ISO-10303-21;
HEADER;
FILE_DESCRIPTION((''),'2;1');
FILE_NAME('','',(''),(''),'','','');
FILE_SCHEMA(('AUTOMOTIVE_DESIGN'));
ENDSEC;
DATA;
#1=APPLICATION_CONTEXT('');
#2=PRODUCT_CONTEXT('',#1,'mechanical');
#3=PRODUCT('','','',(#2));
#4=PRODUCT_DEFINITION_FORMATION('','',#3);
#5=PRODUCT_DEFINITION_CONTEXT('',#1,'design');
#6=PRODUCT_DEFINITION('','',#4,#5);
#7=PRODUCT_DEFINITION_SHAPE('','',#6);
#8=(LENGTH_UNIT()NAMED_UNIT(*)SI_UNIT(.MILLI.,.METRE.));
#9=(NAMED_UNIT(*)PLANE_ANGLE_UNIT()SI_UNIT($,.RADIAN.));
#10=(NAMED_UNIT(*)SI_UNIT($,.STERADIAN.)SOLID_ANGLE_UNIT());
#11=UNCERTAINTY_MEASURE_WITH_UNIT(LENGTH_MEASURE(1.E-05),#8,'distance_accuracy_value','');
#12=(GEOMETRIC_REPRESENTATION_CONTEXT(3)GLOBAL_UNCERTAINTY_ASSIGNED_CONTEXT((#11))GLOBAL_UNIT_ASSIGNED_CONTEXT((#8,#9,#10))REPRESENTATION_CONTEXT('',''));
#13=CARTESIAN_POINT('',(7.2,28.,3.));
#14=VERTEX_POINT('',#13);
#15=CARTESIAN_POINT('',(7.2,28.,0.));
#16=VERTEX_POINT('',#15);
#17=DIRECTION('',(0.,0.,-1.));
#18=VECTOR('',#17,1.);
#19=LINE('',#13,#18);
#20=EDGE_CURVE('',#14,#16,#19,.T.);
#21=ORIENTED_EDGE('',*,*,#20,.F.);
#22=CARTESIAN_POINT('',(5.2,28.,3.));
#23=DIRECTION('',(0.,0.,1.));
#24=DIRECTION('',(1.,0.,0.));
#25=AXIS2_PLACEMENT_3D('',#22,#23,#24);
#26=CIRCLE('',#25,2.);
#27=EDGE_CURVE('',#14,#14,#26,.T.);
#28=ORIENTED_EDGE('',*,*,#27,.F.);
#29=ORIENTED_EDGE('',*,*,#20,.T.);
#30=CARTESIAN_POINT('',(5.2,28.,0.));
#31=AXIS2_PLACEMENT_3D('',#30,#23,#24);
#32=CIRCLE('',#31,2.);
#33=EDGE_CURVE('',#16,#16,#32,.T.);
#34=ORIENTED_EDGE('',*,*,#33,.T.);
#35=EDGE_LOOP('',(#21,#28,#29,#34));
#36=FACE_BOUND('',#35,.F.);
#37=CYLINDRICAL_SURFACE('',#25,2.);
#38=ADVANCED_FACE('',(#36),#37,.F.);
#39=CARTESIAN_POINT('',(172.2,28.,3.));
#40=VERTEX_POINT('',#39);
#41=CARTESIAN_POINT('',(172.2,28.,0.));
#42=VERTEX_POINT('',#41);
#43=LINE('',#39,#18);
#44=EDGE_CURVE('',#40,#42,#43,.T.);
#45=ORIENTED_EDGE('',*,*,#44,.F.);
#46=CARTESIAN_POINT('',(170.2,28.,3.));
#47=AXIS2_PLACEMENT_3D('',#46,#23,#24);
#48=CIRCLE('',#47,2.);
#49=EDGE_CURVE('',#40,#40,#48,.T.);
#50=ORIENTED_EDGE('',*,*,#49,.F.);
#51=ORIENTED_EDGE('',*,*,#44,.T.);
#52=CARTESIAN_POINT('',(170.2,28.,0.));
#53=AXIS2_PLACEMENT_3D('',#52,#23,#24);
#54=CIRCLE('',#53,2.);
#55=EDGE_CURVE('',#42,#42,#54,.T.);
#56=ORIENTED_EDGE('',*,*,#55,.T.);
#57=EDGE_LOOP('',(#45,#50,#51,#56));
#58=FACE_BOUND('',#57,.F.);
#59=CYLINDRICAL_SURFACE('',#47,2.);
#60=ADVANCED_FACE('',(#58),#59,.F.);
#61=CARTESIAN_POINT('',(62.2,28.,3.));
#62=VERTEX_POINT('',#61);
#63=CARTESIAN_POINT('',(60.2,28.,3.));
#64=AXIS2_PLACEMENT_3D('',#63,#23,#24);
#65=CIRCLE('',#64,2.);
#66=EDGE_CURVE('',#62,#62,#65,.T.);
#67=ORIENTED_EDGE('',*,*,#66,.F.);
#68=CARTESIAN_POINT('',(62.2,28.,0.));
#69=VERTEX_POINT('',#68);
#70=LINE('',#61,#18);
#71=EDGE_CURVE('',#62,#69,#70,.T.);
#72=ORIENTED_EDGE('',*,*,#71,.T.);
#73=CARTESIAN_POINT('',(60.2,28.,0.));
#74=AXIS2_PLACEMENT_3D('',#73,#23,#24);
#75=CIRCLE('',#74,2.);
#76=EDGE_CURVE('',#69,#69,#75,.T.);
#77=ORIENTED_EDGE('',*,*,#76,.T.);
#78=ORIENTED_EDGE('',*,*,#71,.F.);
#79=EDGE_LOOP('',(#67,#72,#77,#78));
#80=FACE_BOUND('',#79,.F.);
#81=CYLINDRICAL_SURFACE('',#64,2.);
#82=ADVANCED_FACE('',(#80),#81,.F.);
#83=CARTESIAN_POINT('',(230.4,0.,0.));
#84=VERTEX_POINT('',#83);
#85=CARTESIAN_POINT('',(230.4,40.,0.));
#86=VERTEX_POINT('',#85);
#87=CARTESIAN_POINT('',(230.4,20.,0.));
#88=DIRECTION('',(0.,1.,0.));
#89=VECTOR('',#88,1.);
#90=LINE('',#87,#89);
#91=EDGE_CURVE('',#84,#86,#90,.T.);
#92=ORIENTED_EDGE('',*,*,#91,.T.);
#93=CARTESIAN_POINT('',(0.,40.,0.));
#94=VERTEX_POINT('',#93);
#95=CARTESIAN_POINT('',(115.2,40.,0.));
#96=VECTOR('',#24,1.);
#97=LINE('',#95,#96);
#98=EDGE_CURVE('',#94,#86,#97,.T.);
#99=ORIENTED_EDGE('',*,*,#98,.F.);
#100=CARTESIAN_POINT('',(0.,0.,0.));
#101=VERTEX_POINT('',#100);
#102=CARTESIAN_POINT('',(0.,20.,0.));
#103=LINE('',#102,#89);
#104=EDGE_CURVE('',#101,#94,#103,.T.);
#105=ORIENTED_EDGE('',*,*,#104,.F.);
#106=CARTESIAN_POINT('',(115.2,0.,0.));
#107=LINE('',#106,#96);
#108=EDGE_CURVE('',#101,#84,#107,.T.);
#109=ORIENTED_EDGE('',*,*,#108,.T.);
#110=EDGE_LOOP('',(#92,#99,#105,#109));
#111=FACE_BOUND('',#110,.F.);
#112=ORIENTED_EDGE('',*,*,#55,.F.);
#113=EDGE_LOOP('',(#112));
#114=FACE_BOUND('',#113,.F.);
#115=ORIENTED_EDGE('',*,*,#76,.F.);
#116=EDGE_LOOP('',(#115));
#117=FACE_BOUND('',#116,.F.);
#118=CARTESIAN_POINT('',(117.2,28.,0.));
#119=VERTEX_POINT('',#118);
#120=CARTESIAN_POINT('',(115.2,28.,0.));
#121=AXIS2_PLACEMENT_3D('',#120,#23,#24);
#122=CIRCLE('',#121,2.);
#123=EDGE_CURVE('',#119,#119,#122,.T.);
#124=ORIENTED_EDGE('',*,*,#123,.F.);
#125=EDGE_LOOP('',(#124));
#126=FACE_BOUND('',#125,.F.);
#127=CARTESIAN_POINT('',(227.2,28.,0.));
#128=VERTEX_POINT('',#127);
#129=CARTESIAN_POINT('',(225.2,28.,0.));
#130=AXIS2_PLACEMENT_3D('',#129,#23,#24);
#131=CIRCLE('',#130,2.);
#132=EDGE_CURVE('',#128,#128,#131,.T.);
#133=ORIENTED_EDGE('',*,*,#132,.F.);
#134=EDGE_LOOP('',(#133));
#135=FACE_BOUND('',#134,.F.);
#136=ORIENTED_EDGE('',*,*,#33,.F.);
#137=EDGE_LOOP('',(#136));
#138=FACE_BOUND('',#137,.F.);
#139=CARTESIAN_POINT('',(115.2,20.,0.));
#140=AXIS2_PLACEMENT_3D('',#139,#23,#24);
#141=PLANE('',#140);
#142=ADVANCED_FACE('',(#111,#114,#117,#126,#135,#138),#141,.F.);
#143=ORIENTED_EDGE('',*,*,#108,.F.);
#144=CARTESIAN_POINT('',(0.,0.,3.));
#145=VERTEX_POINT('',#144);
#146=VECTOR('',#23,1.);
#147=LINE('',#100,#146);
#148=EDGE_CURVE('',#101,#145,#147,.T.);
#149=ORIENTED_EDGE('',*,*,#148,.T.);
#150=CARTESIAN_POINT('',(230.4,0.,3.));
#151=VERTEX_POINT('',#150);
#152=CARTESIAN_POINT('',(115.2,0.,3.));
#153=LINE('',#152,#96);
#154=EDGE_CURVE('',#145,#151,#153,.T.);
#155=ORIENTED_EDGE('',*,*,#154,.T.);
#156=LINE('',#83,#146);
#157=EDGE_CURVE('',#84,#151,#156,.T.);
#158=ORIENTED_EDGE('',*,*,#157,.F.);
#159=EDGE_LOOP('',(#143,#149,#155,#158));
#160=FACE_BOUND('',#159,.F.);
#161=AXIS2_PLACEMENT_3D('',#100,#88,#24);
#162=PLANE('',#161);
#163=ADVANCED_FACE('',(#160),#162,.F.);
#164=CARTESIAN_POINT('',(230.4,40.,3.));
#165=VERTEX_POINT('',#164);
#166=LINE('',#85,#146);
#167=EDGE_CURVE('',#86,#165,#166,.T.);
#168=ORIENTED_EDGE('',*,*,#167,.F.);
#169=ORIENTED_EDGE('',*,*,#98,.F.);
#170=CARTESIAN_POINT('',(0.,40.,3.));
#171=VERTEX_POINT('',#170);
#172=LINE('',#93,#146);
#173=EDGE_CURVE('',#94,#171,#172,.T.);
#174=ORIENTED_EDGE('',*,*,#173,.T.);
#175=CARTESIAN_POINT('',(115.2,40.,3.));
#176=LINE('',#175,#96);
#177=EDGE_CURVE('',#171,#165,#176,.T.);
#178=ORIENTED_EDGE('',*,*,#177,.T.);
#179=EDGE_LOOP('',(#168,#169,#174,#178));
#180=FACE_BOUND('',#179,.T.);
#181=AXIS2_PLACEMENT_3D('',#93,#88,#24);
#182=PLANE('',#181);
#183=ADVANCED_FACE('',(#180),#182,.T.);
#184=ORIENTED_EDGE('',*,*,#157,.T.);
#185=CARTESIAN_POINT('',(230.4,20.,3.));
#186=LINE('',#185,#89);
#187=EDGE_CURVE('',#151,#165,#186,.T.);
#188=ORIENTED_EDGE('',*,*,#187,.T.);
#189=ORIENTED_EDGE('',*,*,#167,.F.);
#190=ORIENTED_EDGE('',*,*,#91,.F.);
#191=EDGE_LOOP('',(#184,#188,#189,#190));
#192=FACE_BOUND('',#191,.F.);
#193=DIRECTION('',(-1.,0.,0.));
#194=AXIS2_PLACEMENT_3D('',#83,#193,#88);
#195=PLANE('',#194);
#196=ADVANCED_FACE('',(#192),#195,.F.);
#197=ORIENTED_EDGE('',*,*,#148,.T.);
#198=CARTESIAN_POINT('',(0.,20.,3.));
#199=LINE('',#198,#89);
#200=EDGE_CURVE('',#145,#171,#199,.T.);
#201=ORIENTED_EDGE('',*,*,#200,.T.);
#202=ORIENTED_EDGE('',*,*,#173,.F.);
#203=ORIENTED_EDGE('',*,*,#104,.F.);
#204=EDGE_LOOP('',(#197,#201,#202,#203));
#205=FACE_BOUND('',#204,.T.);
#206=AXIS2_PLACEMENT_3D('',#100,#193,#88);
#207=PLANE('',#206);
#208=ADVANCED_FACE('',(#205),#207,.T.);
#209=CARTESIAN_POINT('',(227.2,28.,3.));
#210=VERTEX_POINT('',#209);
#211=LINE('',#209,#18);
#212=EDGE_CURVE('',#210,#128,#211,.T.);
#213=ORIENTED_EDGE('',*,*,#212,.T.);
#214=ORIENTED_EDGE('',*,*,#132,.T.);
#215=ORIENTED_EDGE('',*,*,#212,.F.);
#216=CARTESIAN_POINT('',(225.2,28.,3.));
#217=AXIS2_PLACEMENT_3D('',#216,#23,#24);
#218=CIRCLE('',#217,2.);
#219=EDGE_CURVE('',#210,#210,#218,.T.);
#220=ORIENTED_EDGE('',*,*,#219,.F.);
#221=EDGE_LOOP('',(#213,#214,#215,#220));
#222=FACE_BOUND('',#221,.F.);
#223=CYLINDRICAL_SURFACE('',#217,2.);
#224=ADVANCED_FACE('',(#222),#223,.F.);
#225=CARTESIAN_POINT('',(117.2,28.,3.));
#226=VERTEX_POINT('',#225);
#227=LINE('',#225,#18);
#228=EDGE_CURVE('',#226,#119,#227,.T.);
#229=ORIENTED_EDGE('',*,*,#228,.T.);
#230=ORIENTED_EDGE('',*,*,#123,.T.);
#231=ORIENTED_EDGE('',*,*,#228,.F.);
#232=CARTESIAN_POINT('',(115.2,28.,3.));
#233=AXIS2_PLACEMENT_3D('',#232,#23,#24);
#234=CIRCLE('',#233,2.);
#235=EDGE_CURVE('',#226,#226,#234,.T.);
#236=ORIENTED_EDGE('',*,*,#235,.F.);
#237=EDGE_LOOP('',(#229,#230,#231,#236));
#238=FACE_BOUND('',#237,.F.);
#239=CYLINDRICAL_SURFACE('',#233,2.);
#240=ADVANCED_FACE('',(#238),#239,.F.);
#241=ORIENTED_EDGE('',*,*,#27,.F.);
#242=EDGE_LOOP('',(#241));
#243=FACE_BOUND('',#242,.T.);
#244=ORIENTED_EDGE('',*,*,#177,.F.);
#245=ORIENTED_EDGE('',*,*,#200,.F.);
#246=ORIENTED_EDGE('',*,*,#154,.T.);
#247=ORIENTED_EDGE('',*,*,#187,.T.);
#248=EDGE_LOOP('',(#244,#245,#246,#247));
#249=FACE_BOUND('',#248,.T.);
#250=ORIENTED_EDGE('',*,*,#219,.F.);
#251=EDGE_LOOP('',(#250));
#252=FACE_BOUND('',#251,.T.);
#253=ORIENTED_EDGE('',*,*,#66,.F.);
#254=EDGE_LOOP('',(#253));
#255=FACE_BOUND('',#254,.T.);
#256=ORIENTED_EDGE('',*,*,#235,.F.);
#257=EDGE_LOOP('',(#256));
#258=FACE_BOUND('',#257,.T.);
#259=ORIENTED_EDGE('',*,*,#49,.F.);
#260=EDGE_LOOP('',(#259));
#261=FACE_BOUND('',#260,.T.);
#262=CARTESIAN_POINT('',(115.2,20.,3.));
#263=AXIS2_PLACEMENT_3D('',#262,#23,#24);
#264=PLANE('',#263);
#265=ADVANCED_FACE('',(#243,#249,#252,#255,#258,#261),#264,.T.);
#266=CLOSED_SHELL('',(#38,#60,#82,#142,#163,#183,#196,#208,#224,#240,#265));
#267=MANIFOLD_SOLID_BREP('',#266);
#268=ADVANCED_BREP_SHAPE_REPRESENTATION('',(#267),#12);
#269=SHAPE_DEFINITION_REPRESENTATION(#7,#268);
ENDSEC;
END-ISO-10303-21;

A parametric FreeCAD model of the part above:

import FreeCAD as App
import Part
import Sketcher

V = App.Vector
Q = App.Units.Quantity

doc = App.newDocument("Part")
body = doc.addObject("PartDesign::Body", "Body")

# Sketch on XY plane
sketch1 = doc.addObject("Sketcher::SketchObject", "Sketch")
body.addObject(sketch1)
sketch1.AttachmentSupport = (doc.XY_Plane, [""])
sketch1.MapMode = "FlatFace"
sketch1.addGeometry(Part.LineSegment(V(0, 40, 0), V(0, 0, 0)), False)
sketch1.addGeometry(Part.LineSegment(V(0, 0, 0), V(230.4, 0, 0)), False)
sketch1.addGeometry(Part.LineSegment(V(230.4, 0, 0), V(230.4, 40, 0)), False)
sketch1.addGeometry(Part.LineSegment(V(230.4, 40, 0), V(0, 40, 0)), False)
sketch1.addConstraint(Sketcher.Constraint("Coincident", 0, 2, 1, 1))
sketch1.addConstraint(Sketcher.Constraint("Coincident", 1, 2, 2, 1))
sketch1.addConstraint(Sketcher.Constraint("Coincident", 2, 2, 3, 1))
sketch1.addConstraint(Sketcher.Constraint("Coincident", 3, 2, 0, 1))
sketch1.addConstraint(Sketcher.Constraint("Vertical", 0))
sketch1.addConstraint(Sketcher.Constraint("Horizontal", 1))
sketch1.addConstraint(Sketcher.Constraint("Vertical", 2))
sketch1.addConstraint(Sketcher.Constraint("Horizontal", 3))
sketch1.addConstraint(Sketcher.Constraint("Coincident", 0, 2, -1, 1))
sketch1.addConstraint(Sketcher.Constraint("DistanceY", 0, 2, 0, 1, Q("40 mm")))
sketch1.addConstraint(Sketcher.Constraint("DistanceX", 1, 1, 1, 2, Q("230.4 mm")))
pad1 = doc.addObject("PartDesign::Pad", "Pad")
body.addObject(pad1)
pad1.Profile = sketch1
pad1.Length = 3

# Sketch on XY plane
sketch2 = doc.addObject("Sketcher::SketchObject", "Sketch001")
body.addObject(sketch2)
sketch2.AttachmentSupport = (doc.XY_Plane, [""])
sketch2.MapMode = "FlatFace"
sketch2.AttachmentOffset = App.Placement(V(0, 0, 3), App.Rotation())
sketch2.addGeometry(Part.Circle(V(5.2, 28, 0), V(0, 0, 1), 2), False)
sketch2.addGeometry(Part.Circle(V(60.2, 28, 0), V(0, 0, 1), 2), False)
sketch2.addGeometry(Part.Circle(V(115.2, 28, 0), V(0, 0, 1), 2), False)
sketch2.addGeometry(Part.Circle(V(170.2, 28, 0), V(0, 0, 1), 2), False)
sketch2.addGeometry(Part.Circle(V(225.2, 28, 0), V(0, 0, 1), 2), False)
sketch2.addConstraint(Sketcher.Constraint("Equal", 0, 1))
sketch2.addConstraint(Sketcher.Constraint("Equal", 1, 2))
sketch2.addConstraint(Sketcher.Constraint("Equal", 2, 3))
sketch2.addConstraint(Sketcher.Constraint("Equal", 3, 4))
sketch2.addConstraint(Sketcher.Constraint("Horizontal", 0, 3, 1, 3))
sketch2.addConstraint(Sketcher.Constraint("Horizontal", 1, 3, 2, 3))
sketch2.addConstraint(Sketcher.Constraint("Horizontal", 2, 3, 3, 3))
sketch2.addConstraint(Sketcher.Constraint("Horizontal", 3, 3, 4, 3))
sketch2.addConstraint(Sketcher.Constraint("Diameter", 0, Q("4 mm")))
sketch2.addConstraint(Sketcher.Constraint("DistanceY", -1, 1, 0, 3, Q("28 mm")))
sketch2.addConstraint(Sketcher.Constraint("DistanceX", 0, 3, 1, 3, Q("55 mm")))
sketch2.addConstraint(Sketcher.Constraint("DistanceX", 1, 3, 2, 3, Q("55 mm")))
sketch2.addConstraint(Sketcher.Constraint("DistanceX", 2, 3, 3, 3, Q("55 mm")))
sketch2.addConstraint(Sketcher.Constraint("DistanceX", 3, 3, 4, 3, Q("55 mm")))
sketch2.addConstraint(Sketcher.Constraint("DistanceX", -1, 1, 0, 3, Q("5.2 mm")))
pocket1 = doc.addObject("PartDesign::Pocket", "Pocket")
body.addObject(pocket1)
pocket1.Profile = sketch2
pocket1.Type = "ThroughAll"

doc.recompute()
